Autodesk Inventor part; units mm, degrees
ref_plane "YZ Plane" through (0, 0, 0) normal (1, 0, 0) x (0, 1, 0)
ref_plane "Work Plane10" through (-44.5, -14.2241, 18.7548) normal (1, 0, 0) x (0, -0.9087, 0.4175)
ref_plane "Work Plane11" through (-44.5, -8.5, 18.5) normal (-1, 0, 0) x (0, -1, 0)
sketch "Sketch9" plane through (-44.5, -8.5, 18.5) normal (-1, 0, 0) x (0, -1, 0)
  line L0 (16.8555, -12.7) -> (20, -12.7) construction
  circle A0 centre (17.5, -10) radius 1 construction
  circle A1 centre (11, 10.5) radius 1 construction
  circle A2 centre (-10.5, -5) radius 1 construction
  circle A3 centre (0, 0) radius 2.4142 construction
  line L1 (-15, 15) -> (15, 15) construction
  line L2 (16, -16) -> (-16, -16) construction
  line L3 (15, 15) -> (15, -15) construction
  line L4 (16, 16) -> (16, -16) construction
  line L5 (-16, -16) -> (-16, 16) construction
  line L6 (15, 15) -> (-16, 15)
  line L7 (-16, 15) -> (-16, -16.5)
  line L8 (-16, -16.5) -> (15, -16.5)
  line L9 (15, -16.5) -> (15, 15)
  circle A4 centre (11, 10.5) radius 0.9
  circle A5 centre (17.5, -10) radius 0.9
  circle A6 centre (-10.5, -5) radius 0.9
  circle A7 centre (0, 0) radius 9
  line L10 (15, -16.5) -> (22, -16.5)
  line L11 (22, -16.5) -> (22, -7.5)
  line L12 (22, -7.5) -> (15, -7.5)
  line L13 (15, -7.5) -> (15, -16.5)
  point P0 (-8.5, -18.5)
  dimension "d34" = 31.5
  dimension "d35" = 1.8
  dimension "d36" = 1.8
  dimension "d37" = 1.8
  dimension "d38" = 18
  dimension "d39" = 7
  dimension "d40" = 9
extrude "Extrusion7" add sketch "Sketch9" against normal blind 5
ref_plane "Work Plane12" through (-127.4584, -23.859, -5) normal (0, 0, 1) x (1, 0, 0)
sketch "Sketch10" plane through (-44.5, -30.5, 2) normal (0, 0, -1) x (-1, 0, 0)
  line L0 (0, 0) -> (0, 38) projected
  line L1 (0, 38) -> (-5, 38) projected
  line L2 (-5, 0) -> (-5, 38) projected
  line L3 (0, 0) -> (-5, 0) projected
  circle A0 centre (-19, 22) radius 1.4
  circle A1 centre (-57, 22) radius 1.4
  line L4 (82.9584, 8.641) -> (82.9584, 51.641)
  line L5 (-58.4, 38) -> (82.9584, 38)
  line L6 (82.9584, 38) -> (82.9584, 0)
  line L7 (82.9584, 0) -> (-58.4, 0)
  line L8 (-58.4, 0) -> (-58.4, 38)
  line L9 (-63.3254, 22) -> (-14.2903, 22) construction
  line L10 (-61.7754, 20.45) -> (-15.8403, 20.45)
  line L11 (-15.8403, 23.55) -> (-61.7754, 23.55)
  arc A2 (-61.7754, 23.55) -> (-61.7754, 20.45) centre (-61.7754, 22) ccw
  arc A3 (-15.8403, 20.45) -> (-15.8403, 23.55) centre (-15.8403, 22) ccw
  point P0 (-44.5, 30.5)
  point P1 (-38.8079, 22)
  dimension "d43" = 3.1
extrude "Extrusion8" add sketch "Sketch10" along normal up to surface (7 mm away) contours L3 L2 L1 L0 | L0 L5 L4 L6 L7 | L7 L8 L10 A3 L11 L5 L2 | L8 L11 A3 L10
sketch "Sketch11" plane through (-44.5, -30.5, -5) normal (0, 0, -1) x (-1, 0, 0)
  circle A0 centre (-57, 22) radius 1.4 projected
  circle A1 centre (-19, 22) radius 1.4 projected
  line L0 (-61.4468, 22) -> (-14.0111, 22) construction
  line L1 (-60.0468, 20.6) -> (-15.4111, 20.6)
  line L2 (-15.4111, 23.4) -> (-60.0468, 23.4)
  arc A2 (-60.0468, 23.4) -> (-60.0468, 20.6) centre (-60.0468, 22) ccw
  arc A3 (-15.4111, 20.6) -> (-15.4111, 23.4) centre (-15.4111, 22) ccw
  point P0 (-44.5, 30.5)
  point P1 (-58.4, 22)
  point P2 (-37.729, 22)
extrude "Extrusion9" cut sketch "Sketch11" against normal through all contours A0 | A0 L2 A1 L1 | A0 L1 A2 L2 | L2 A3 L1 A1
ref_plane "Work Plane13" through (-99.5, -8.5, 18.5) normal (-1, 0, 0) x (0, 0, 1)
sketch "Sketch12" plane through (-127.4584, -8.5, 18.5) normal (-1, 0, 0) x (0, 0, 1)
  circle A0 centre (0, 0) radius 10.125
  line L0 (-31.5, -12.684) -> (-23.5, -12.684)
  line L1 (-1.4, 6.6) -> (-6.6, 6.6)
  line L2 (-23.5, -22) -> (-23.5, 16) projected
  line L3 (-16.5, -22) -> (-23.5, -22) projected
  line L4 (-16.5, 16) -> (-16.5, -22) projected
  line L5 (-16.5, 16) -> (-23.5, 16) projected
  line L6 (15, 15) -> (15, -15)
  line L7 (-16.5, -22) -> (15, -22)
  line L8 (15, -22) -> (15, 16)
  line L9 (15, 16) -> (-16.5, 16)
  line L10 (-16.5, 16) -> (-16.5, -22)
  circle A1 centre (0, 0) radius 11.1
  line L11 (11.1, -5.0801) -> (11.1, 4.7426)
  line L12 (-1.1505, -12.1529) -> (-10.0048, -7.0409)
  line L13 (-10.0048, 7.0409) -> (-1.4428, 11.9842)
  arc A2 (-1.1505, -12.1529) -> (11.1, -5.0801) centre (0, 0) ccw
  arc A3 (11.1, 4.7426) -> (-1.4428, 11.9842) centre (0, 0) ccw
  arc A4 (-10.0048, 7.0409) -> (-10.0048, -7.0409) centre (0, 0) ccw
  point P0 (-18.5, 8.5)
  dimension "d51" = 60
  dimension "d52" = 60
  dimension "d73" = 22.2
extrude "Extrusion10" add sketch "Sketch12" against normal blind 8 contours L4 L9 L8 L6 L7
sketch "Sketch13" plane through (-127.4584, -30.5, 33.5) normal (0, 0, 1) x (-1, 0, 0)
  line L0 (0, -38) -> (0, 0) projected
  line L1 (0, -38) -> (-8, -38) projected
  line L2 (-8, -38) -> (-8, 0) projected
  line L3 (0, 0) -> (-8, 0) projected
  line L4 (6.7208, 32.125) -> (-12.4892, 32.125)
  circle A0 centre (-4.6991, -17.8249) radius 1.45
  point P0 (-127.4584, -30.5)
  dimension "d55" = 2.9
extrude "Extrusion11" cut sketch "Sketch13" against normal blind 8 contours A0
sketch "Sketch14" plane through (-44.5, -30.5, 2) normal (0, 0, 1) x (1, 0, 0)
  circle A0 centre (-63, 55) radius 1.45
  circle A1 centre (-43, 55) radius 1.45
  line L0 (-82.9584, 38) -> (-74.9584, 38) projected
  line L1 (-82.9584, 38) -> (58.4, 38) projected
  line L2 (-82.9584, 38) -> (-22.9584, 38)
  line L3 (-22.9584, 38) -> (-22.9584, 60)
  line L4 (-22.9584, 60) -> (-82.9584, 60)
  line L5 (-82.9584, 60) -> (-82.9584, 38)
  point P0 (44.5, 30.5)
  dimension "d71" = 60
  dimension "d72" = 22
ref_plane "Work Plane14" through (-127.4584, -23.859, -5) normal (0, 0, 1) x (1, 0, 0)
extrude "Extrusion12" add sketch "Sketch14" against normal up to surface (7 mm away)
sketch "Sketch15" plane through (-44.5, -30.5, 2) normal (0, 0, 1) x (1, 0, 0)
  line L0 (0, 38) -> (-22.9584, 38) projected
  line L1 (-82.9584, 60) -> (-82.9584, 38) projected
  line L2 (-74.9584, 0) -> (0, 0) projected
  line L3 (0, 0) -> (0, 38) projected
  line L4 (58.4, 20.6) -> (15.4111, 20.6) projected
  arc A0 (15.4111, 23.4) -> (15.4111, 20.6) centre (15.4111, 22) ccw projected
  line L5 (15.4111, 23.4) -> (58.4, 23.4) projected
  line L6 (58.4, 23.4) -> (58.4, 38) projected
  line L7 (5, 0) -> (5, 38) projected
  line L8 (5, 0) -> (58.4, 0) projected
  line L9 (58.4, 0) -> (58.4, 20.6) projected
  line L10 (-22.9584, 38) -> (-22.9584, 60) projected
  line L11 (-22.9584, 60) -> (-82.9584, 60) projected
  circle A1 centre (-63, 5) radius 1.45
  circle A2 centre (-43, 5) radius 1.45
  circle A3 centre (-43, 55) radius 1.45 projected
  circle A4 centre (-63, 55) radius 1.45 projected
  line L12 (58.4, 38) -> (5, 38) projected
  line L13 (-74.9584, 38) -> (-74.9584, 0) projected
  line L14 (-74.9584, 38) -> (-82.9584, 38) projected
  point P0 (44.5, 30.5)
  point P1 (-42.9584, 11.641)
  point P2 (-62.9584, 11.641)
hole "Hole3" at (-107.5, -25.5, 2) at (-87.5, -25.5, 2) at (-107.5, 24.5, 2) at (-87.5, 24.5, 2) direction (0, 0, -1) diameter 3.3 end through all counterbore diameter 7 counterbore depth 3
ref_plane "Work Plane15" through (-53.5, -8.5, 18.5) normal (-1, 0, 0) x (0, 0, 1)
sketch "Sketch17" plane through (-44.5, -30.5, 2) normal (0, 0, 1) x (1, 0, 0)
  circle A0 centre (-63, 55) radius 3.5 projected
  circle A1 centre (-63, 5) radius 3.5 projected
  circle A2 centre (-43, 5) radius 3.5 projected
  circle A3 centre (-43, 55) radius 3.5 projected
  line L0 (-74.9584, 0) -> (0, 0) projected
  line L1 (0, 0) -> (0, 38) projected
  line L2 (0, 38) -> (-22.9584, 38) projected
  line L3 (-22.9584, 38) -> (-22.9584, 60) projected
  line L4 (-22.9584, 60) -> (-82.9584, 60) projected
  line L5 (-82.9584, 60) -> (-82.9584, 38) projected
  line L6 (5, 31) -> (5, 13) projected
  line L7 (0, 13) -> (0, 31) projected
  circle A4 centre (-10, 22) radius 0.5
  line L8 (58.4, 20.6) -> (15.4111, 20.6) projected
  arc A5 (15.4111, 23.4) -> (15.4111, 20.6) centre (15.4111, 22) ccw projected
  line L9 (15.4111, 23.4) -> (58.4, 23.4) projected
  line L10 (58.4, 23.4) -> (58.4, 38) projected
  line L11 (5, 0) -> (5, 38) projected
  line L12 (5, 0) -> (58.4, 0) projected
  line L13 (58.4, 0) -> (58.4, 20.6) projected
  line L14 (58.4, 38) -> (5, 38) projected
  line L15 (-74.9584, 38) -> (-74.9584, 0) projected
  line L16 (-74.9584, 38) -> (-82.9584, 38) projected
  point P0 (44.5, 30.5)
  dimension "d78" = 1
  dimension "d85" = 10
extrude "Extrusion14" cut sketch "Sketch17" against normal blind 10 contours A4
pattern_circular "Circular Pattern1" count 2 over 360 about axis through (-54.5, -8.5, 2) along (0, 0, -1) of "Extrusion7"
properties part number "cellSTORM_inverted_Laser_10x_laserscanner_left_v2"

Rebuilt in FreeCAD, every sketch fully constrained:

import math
import FreeCAD as App
import Part
import Sketcher
from FreeCAD import Vector
Q = App.Units.Quantity

doc = App.newDocument("Part")
body = doc.addObject("PartDesign::Body", "Body")

# Sketch on YZ plane
sketch1 = body.newObject("Sketcher::SketchObject", "Sketch")
sketch1.AttachmentSupport = (doc.getObject("YZ_Plane"), [""])
sketch1.MapMode = "FlatFace"
sketch1.AttachmentOffset = App.Placement(Vector(0, 0, -44.5), App.Rotation())
sketch1.addGeometry([
    Part.LineSegment(Vector(-23.5, 11, 0), Vector(-23.5, 33.5, 0)),  # 0
    Part.LineSegment(Vector(-23.5, 33.5, 0), Vector(7.5, 33.5, 0)),  # 1
    Part.LineSegment(Vector(7.5, 33.5, 0), Vector(7.5, 2, 0)),  # 2
    Part.LineSegment(Vector(7.5, 2, 0), Vector(-30.5, 2, 0)),  # 3
    Part.LineSegment(Vector(-30.5, 2, 0), Vector(-30.5, 11, 0)),  # 4
    Part.LineSegment(Vector(-30.5, 11, 0), Vector(-23.5, 11, 0)),  # 5
    Part.Circle(Vector(2, 13.5, 0), Vector(0, 0, 1), 0.9),  # 6
    Part.Circle(Vector(-8.5, 18.5, 0), Vector(0, 0, 1), 9),  # 7
    Part.Circle(Vector(-19.5, 29, 0), Vector(0, 0, 1), 0.9),  # 8
    Part.Circle(Vector(-26, 8.5, 0), Vector(0, 0, 1), 0.9),  # 9
], False)
sketch1.addConstraint([
    Sketcher.Constraint("Coincident", 0, 2, 1, 1),
    Sketcher.Constraint("Coincident", 1, 2, 2, 1),
    Sketcher.Constraint("Coincident", 2, 2, 3, 1),
    Sketcher.Constraint("Coincident", 3, 2, 4, 1),
    Sketcher.Constraint("Coincident", 4, 2, 5, 1),
    Sketcher.Constraint("Coincident", 5, 2, 0, 1),
    Sketcher.Constraint("Vertical", 0),
    Sketcher.Constraint("Horizontal", 1),
    Sketcher.Constraint("Vertical", 2),
    Sketcher.Constraint("Horizontal", 3),
    Sketcher.Constraint("Vertical", 4),
    Sketcher.Constraint("Horizontal", 5),
    Sketcher.Constraint("Equal", 6, 8),
    Sketcher.Constraint("Equal", 8, 9),
    Sketcher.Constraint("Diameter", 7, Q("18 mm")),
    Sketcher.Constraint("Diameter", 6, Q("1.8 mm")),
    Sketcher.Constraint("DistanceX", 5, 1, 5, 2, Q("7 mm")),
    Sketcher.Constraint("DistanceY", 4, 1, 4, 2, Q("9 mm")),
    Sketcher.Constraint("DistanceY", 2, 2, 2, 1, Q("31.5 mm")),
    Sketcher.Constraint("DistanceY", 4, 2, 8, 3, Q("18 mm")),
    Sketcher.Constraint("DistanceX", 1, 1, 1, 2, Q("31 mm")),
    Sketcher.Constraint("DistanceX", -1, 1, 6, 3, Q("2 mm")),
    Sketcher.Constraint("DistanceY", -1, 1, 8, 3, Q("29 mm")),
    Sketcher.Constraint("DistanceX", 9, 3, -1, 1, Q("26 mm")),
    Sketcher.Constraint("DistanceY", 6, 3, 7, 3, Q("5 mm")),
    Sketcher.Constraint("DistanceX", 8, 3, 7, 3, Q("11 mm")),
    Sketcher.Constraint("DistanceY", 9, 3, 7, 3, Q("10 mm")),
    Sketcher.Constraint("DistanceX", 0, 2, 8, 3, Q("4 mm")),
    Sketcher.Constraint("DistanceY", 7, 3, 0, 2, Q("15 mm")),
    Sketcher.Constraint("DistanceX", 7, 3, -1, 1, Q("8.5 mm")),
])
pad1 = body.newObject("PartDesign::Pad", "Pad")
pad1.Profile = sketch1
pad1.Length = 5

# Sketch on XY plane
sketch2 = body.newObject("Sketcher::SketchObject", "Sketch001")
sketch2.AttachmentSupport = (doc.getObject("XY_Plane"), [""])
sketch2.MapMode = "FlatFace"
sketch2.AttachmentOffset = App.Placement(Vector(0, 0, 2), App.Rotation())
sketch2.addGeometry([
    Part.LineSegment(Vector(13.9, -8.5, 0), Vector(13.9, -30.5, 0)),  # 0
    Part.LineSegment(Vector(13.9, -30.5, 0), Vector(-127.5, -30.5, 0)),  # 1
    Part.LineSegment(Vector(-127.5, -30.5, 0), Vector(-127.5, 7.5, 0)),  # 2
    Part.LineSegment(Vector(-127.5, 7.5, 0), Vector(13.9, 7.5, 0)),  # 3
    Part.LineSegment(Vector(13.9, 7.5, 0), Vector(13.9, -8.5, 0)),  # 4
    Part.Circle(Vector(12.5, -8.5, 0), Vector(0, 0, 1), 1.4),  # 5
    Part.Circle(Vector(-25.5, -8.5, 0), Vector(0, 0, 1), 1.4),  # 6
], False)
sketch2.addConstraint([
    Sketcher.Constraint("Coincident", 0, 2, 1, 1),
    Sketcher.Constraint("Coincident", 1, 2, 2, 1),
    Sketcher.Constraint("Coincident", 2, 2, 3, 1),
    Sketcher.Constraint("Coincident", 3, 2, 4, 1),
    Sketcher.Constraint("Coincident", 4, 2, 0, 1),
    Sketcher.Constraint("Vertical", 0),
    Sketcher.Constraint("Horizontal", 1),
    Sketcher.Constraint("Vertical", 2),
    Sketcher.Constraint("Horizontal", 3),
    Sketcher.Constraint("Vertical", 4),
    Sketcher.Constraint("Equal", 5, 6),
    Sketcher.Constraint("Horizontal", 5, 3, 6, 3),
    Sketcher.Constraint("Horizontal", 6, 3, 4, 2),
    Sketcher.Constraint("Diameter", 5, Q("2.8 mm")),
    Sketcher.Constraint("DistanceY", 0, 2, 0, 1, Q("22 mm")),
    Sketcher.Constraint("DistanceY", 2, 1, 2, 2, Q("38 mm")),
    Sketcher.Constraint("DistanceX", 6, 3, 5, 3, Q("38 mm")),
    Sketcher.Constraint("DistanceX", -1, 1, 5, 3, Q("12.5 mm")),
    Sketcher.Constraint("DistanceY", 5, 3, -1, 1, Q("8.5 mm")),
    Sketcher.Constraint("DistanceX", -1, 1, 0, 2, Q("13.9 mm")),
    Sketcher.Constraint("DistanceX", 1, 2, 1, 1, Q("141.3584 mm")),
])
pad2 = body.newObject("PartDesign::Pad", "Pad001")
pad2.Profile = sketch2
pad2.Length = 7
pad2.Reversed = True

# Sketch on XY plane
sketch3 = body.newObject("Sketcher::SketchObject", "Sketch002")
sketch3.AttachmentSupport = (doc.getObject("XY_Plane"), [""])
sketch3.MapMode = "FlatFace"
sketch3.AttachmentOffset = App.Placement(Vector(0, 0, -5), App.Rotation())
sketch3.addGeometry([
    Part.ArcOfCircle(Part.Circle(Vector(-25.5, -8.5, 0), Vector(0, 0, 1), 1.4), math.radians(-90), math.radians(90)),  # 0
    Part.LineSegment(Vector(-25.5, -7.1, 0), Vector(15.5, -7.1, 0)),  # 1
    Part.ArcOfCircle(Part.Circle(Vector(15.5, -8.5, 0), Vector(0, 0, 1), 1.4), math.radians(-90), math.radians(90)),  # 2
    Part.LineSegment(Vector(15.5, -9.9, 0), Vector(-25.5, -9.9, 0)),  # 3
    Part.LineSegment(Vector(-29.1, -7.1, 0), Vector(-25.5, -7.1, 0)),  # 4
    Part.ArcOfCircle(Part.Circle(Vector(-25.5, -8.5, 0), Vector(0, 0, 1), 1.4), math.radians(90), math.radians(270)),  # 5
    Part.LineSegment(Vector(-25.5, -9.9, 0), Vector(-29.1, -9.9, 0)),  # 6
    Part.ArcOfCircle(Part.Circle(Vector(-29.1, -8.5, 0), Vector(0, 0, 1), 1.4), math.radians(90), math.radians(270)),  # 7
], False)
sketch3.addConstraint([
    Sketcher.Constraint("Tangent", 0, 2, 1, 1),
    Sketcher.Constraint("Tangent", 1, 2, 2, 2),
    Sketcher.Constraint("Tangent", 2, 1, 3, 1),
    Sketcher.Constraint("Tangent", 3, 2, 0, 1),
    Sketcher.Constraint("Tangent", 4, 2, 5, 1),
    Sketcher.Constraint("Tangent", 5, 2, 6, 1),
    Sketcher.Constraint("Tangent", 6, 2, 7, 2),
    Sketcher.Constraint("Tangent", 7, 1, 4, 1),
    Sketcher.Constraint("Horizontal", 1),
    Sketcher.Constraint("Horizontal", 3),
    Sketcher.Constraint("Horizontal", 4),
    Sketcher.Constraint("Horizontal", 6),
    Sketcher.Constraint("Coincident", 5, 3, 0, 3),
    Sketcher.Constraint("Equal", 2, 5),
    Sketcher.Constraint("Radius", 0, Q("1.4 mm")),
    Sketcher.Constraint("DistanceX", 0, 3, -1, 1, Q("25.5 mm")),
    Sketcher.Constraint("DistanceY", 0, 3, -1, 1, Q("8.5 mm")),
    Sketcher.Constraint("DistanceX", 4, 1, 4, 2, Q("3.589 mm")),
    Sketcher.Constraint("DistanceX", 1, 1, 1, 2, Q("41.0468 mm")),
])
pocket1 = body.newObject("PartDesign::Pocket", "Pocket")
pocket1.Profile = sketch3
pocket1.Type = "ThroughAll"
pocket1.Reversed = True

# Sketch on YZ plane
sketch4 = body.newObject("Sketcher::SketchObject", "Sketch003")
sketch4.AttachmentSupport = (doc.getObject("YZ_Plane"), [""])
sketch4.MapMode = "FlatFace"
sketch4.AttachmentOffset = App.Placement(Vector(0, 0, -127.4584), App.Rotation())
sketch4.addGeometry([
    Part.LineSegment(Vector(8, 2, 0), Vector(-30, 2, 0)),  # 0
    Part.LineSegment(Vector(-30, 2, 0), Vector(-30, 34, 0)),  # 1
    Part.LineSegment(Vector(-30, 34, 0), Vector(8, 34, 0)),  # 2
    Part.LineSegment(Vector(8, 34, 0), Vector(8, 2, 0)),  # 3
    Part.LineSegment(Vector(-4, 30, 0), Vector(-14, 30, 0)),  # 4
    Part.ArcOfCircle(Part.Circle(Vector(-8, 18, 0), Vector(0, 0, 1), 12), math.radians(115), math.radians(185)),  # 5
    Part.LineSegment(Vector(-21, 17, 0), Vector(-16, 8, 0)),  # 6
    Part.ArcOfCircle(Part.Circle(Vector(-8, 18, 0), Vector(0, 0, 1), 12), math.radians(-125), math.radians(-55)),  # 7
    Part.LineSegment(Vector(-1, 8, 0), Vector(3, 17, 0)),  # 8
    Part.ArcOfCircle(Part.Circle(Vector(-8, 18, 0), Vector(0, 0, 1), 12), math.radians(-7), math.radians(67)),  # 9
], False)
sketch4.addConstraint([
    Sketcher.Constraint("Coincident", 0, 2, 1, 1),
    Sketcher.Constraint("Coincident", 1, 2, 2, 1),
    Sketcher.Constraint("Coincident", 2, 2, 3, 1),
    Sketcher.Constraint("Coincident", 3, 2, 0, 1),
    Sketcher.Constraint("Coincident", 4, 2, 5, 1),
    Sketcher.Constraint("Coincident", 5, 2, 6, 1),
    Sketcher.Constraint("Coincident", 6, 2, 7, 1),
    Sketcher.Constraint("Coincident", 7, 2, 8, 1),
    Sketcher.Constraint("Coincident", 8, 2, 9, 1),
    Sketcher.Constraint("Coincident", 9, 2, 4, 1),
    Sketcher.Constraint("Horizontal", 0),
    Sketcher.Constraint("Vertical", 1),
    Sketcher.Constraint("Horizontal", 2),
    Sketcher.Constraint("Vertical", 3),
    Sketcher.Constraint("Horizontal", 4),
    Sketcher.Constraint("Coincident", 7, 3, 5, 3),
    Sketcher.Constraint("Coincident", 9, 3, 5, 3),
    Sketcher.Constraint("Horizontal", 6, 2, 7, 2),
    Sketcher.Constraint("Angle", 6, Q("-60.0002 deg")),
    Sketcher.Constraint("Angle", 8, Q("59.9999 deg")),
    Sketcher.Constraint("DistanceX", 0, 2, 0, 1, Q("38 mm")),
    Sketcher.Constraint("DistanceY", 1, 1, 1, 2, Q("31.5 mm")),
    Sketcher.Constraint("DistanceY", -1, 1, 0, 2, Q("2 mm")),
    Sketcher.Constraint("Radius", 7, Q("12.234 mm")),
    Sketcher.Constraint("DistanceX", 0, 2, 5, 3, Q("22 mm")),
    Sketcher.Constraint("DistanceY", 5, 3, 1, 2, Q("15 mm")),
    Sketcher.Constraint("DistanceX", 5, 3, -1, 1, Q("8.5 mm")),
    Sketcher.Constraint("DistanceY", -1, 1, 4, 2, Q("29.6 mm")),
    Sketcher.Constraint("Radius", 5, Q("12.2072 mm")),
    Sketcher.Constraint("Radius", 9, Q("12.0707 mm")),
    Sketcher.Constraint("Distance", 6, Q("10.224 mm")),
])
pad3 = body.newObject("PartDesign::Pad", "Pad002")
pad3.Profile = sketch4
pad3.Length = 8

# Sketch on XY plane
sketch5 = body.newObject("Sketcher::SketchObject", "Sketch004")
sketch5.AttachmentSupport = (doc.getObject("XY_Plane"), [""])
sketch5.MapMode = "FlatFace"
sketch5.AttachmentOffset = App.Placement(Vector(0, 0, 33.5), App.Rotation())
sketch5.addGeometry(Part.Circle(Vector(-122.8, -12.7, 0), Vector(0, 0, 1), 1.4), False)
sketch5.addConstraint([
    Sketcher.Constraint("Diameter", 0, Q("2.9 mm")),
    Sketcher.Constraint("DistanceY", 0, 3, -1, 1, Q("12.675 mm")),
    Sketcher.Constraint("DistanceX", 0, 3, -1, 1, Q("122.7593 mm")),
])
pocket2 = body.newObject("PartDesign::Pocket", "Pocket001")
pocket2.Profile = sketch5
pocket2.Length = 8

# Sketch on XY plane
sketch6 = body.newObject("Sketcher::SketchObject", "Sketch005")
sketch6.AttachmentSupport = (doc.getObject("XY_Plane"), [""])
sketch6.MapMode = "FlatFace"
sketch6.AttachmentOffset = App.Placement(Vector(0, 0, 2), App.Rotation())
sketch6.addGeometry([
    Part.LineSegment(Vector(-127.5, 29.5, 0), Vector(-127.5, 7.5, 0)),  # 0
    Part.LineSegment(Vector(-127.5, 7.5, 0), Vector(-67.5, 7.5, 0)),  # 1
    Part.LineSegment(Vector(-67.5, 7.5, 0), Vector(-67.5, 29.5, 0)),  # 2
    Part.LineSegment(Vector(-67.5, 29.5, 0), Vector(-127.5, 29.5, 0)),  # 3
    Part.Circle(Vector(-107.5, 24.5, 0), Vector(0, 0, 1), 1.4),  # 4
    Part.Circle(Vector(-87.5, 24.5, 0), Vector(0, 0, 1), 1.4),  # 5
], False)
sketch6.addConstraint([
    Sketcher.Constraint("Coincident", 0, 2, 1, 1),
    Sketcher.Constraint("Coincident", 1, 2, 2, 1),
    Sketcher.Constraint("Coincident", 2, 2, 3, 1),
    Sketcher.Constraint("Coincident", 3, 2, 0, 1),
    Sketcher.Constraint("Vertical", 0),
    Sketcher.Constraint("Horizontal", 1),
    Sketcher.Constraint("Vertical", 2),
    Sketcher.Constraint("Horizontal", 3),
    Sketcher.Constraint("Equal", 4, 5),
    Sketcher.Constraint("Horizontal", 4, 3, 5, 3),
    Sketcher.Constraint("DistanceX", 1, 1, 1, 2, Q("60 mm")),
    Sketcher.Constraint("DistanceY", 0, 2, 0, 1, Q("22 mm")),
    Sketcher.Constraint("Diameter", 4, Q("2.9 mm")),
    Sketcher.Constraint("DistanceX", 4, 3, 5, 3, Q("20 mm")),
    Sketcher.Constraint("DistanceY", 0, 2, 4, 3, Q("17 mm")),
    Sketcher.Constraint("DistanceX", 4, 3, -1, 1, Q("107.5 mm")),
    Sketcher.Constraint("DistanceY", -1, 1, 4, 3, Q("24.5 mm")),
    Sketcher.Constraint("DistanceX", 0, 2, -1, 1, Q("127.4584 mm")),
])
pad4 = body.newObject("PartDesign::Pad", "Pad003")
pad4.Profile = sketch6
pad4.Length = 7
pad4.Reversed = True

# Sketch on XY plane
sketch7 = body.newObject("Sketcher::SketchObject", "Sketch006")
sketch7.AttachmentSupport = (doc.getObject("XY_Plane"), [""])
sketch7.MapMode = "FlatFace"
sketch7.AttachmentOffset = App.Placement(Vector(0, 0, 2), App.Rotation())
sketch7.addGeometry([
    Part.Circle(Vector(-107.5, -25.5, 0), Vector(0, 0, 1), 1.6),
    Part.Circle(Vector(-87.5, -25.5, 0), Vector(0, 0, 1), 1.6),
    Part.Circle(Vector(-107.5, 24.5, 0), Vector(0, 0, 1), 1.6),
    Part.Circle(Vector(-87.5, 24.5, 0), Vector(0, 0, 1), 1.6),
], False)
sketch7.addConstraint([
    Sketcher.Constraint("Equal", 0, 1),
    Sketcher.Constraint("Equal", 1, 2),
    Sketcher.Constraint("Equal", 2, 3),
    Sketcher.Constraint("Horizontal", 0, 3, 1, 3),
    Sketcher.Constraint("Horizontal", 2, 3, 3, 3),
    Sketcher.Constraint("Vertical", 0, 3, 2, 3),
    Sketcher.Constraint("Vertical", 1, 3, 3, 3),
    Sketcher.Constraint("Diameter", 0, Q("3.3 mm")),
    Sketcher.Constraint("DistanceX", 0, 3, 1, 3, Q("20 mm")),
    Sketcher.Constraint("DistanceY", 0, 3, 2, 3, Q("50 mm")),
    Sketcher.Constraint("DistanceX", 0, 3, -1, 1, Q("107.5 mm")),
    Sketcher.Constraint("DistanceY", 0, 3, -1, 1, Q("25.5 mm")),
])
doc.recompute()
hole = body.newObject("PartDesign::Hole", "Hole")
hole.Profile = sketch7
hole.ThreadType = "None"
hole.Diameter = 3.3
hole.DepthType = "ThroughAll"
hole.HoleCutType = "Counterbore"
hole.HoleCutDiameter = 7
hole.HoleCutDepth = 3

# Sketch on XY plane
sketch8 = body.newObject("Sketcher::SketchObject", "Sketch007")
sketch8.AttachmentSupport = (doc.getObject("XY_Plane"), [""])
sketch8.MapMode = "FlatFace"
sketch8.AttachmentOffset = App.Placement(Vector(0, 0, 2), App.Rotation())
sketch8.addGeometry(Part.Circle(Vector(-54.5, -8.5, 0), Vector(0, 0, 1), 0.5), False)
sketch8.addConstraint([
    Sketcher.Constraint("Diameter", 0, Q("1 mm")),
    Sketcher.Constraint("DistanceX", 0, 3, -1, 1, Q("54.5 mm")),
    Sketcher.Constraint("DistanceY", 0, 3, -1, 1, Q("8.5 mm")),
])
pocket3 = body.newObject("PartDesign::Pocket", "Pocket002")
pocket3.Profile = sketch8
pocket3.Length = 10
doc.recompute()

datumline = body.newObject("PartDesign::Line", "DatumLine")
datumline.Placement = App.Placement(Vector(-54.5, -8.5, 0), App.Rotation(Vector(0, 0, 1), Vector(0, 0, 1)))
polarpattern = body.newObject("PartDesign::PolarPattern", "PolarPattern")
polarpattern.Originals = [pad1]
polarpattern.Axis = (datumline, [""])
polarpattern.Angle = 360
polarpattern.Occurrences = 2
body.Tip = polarpattern

doc.recompute()
